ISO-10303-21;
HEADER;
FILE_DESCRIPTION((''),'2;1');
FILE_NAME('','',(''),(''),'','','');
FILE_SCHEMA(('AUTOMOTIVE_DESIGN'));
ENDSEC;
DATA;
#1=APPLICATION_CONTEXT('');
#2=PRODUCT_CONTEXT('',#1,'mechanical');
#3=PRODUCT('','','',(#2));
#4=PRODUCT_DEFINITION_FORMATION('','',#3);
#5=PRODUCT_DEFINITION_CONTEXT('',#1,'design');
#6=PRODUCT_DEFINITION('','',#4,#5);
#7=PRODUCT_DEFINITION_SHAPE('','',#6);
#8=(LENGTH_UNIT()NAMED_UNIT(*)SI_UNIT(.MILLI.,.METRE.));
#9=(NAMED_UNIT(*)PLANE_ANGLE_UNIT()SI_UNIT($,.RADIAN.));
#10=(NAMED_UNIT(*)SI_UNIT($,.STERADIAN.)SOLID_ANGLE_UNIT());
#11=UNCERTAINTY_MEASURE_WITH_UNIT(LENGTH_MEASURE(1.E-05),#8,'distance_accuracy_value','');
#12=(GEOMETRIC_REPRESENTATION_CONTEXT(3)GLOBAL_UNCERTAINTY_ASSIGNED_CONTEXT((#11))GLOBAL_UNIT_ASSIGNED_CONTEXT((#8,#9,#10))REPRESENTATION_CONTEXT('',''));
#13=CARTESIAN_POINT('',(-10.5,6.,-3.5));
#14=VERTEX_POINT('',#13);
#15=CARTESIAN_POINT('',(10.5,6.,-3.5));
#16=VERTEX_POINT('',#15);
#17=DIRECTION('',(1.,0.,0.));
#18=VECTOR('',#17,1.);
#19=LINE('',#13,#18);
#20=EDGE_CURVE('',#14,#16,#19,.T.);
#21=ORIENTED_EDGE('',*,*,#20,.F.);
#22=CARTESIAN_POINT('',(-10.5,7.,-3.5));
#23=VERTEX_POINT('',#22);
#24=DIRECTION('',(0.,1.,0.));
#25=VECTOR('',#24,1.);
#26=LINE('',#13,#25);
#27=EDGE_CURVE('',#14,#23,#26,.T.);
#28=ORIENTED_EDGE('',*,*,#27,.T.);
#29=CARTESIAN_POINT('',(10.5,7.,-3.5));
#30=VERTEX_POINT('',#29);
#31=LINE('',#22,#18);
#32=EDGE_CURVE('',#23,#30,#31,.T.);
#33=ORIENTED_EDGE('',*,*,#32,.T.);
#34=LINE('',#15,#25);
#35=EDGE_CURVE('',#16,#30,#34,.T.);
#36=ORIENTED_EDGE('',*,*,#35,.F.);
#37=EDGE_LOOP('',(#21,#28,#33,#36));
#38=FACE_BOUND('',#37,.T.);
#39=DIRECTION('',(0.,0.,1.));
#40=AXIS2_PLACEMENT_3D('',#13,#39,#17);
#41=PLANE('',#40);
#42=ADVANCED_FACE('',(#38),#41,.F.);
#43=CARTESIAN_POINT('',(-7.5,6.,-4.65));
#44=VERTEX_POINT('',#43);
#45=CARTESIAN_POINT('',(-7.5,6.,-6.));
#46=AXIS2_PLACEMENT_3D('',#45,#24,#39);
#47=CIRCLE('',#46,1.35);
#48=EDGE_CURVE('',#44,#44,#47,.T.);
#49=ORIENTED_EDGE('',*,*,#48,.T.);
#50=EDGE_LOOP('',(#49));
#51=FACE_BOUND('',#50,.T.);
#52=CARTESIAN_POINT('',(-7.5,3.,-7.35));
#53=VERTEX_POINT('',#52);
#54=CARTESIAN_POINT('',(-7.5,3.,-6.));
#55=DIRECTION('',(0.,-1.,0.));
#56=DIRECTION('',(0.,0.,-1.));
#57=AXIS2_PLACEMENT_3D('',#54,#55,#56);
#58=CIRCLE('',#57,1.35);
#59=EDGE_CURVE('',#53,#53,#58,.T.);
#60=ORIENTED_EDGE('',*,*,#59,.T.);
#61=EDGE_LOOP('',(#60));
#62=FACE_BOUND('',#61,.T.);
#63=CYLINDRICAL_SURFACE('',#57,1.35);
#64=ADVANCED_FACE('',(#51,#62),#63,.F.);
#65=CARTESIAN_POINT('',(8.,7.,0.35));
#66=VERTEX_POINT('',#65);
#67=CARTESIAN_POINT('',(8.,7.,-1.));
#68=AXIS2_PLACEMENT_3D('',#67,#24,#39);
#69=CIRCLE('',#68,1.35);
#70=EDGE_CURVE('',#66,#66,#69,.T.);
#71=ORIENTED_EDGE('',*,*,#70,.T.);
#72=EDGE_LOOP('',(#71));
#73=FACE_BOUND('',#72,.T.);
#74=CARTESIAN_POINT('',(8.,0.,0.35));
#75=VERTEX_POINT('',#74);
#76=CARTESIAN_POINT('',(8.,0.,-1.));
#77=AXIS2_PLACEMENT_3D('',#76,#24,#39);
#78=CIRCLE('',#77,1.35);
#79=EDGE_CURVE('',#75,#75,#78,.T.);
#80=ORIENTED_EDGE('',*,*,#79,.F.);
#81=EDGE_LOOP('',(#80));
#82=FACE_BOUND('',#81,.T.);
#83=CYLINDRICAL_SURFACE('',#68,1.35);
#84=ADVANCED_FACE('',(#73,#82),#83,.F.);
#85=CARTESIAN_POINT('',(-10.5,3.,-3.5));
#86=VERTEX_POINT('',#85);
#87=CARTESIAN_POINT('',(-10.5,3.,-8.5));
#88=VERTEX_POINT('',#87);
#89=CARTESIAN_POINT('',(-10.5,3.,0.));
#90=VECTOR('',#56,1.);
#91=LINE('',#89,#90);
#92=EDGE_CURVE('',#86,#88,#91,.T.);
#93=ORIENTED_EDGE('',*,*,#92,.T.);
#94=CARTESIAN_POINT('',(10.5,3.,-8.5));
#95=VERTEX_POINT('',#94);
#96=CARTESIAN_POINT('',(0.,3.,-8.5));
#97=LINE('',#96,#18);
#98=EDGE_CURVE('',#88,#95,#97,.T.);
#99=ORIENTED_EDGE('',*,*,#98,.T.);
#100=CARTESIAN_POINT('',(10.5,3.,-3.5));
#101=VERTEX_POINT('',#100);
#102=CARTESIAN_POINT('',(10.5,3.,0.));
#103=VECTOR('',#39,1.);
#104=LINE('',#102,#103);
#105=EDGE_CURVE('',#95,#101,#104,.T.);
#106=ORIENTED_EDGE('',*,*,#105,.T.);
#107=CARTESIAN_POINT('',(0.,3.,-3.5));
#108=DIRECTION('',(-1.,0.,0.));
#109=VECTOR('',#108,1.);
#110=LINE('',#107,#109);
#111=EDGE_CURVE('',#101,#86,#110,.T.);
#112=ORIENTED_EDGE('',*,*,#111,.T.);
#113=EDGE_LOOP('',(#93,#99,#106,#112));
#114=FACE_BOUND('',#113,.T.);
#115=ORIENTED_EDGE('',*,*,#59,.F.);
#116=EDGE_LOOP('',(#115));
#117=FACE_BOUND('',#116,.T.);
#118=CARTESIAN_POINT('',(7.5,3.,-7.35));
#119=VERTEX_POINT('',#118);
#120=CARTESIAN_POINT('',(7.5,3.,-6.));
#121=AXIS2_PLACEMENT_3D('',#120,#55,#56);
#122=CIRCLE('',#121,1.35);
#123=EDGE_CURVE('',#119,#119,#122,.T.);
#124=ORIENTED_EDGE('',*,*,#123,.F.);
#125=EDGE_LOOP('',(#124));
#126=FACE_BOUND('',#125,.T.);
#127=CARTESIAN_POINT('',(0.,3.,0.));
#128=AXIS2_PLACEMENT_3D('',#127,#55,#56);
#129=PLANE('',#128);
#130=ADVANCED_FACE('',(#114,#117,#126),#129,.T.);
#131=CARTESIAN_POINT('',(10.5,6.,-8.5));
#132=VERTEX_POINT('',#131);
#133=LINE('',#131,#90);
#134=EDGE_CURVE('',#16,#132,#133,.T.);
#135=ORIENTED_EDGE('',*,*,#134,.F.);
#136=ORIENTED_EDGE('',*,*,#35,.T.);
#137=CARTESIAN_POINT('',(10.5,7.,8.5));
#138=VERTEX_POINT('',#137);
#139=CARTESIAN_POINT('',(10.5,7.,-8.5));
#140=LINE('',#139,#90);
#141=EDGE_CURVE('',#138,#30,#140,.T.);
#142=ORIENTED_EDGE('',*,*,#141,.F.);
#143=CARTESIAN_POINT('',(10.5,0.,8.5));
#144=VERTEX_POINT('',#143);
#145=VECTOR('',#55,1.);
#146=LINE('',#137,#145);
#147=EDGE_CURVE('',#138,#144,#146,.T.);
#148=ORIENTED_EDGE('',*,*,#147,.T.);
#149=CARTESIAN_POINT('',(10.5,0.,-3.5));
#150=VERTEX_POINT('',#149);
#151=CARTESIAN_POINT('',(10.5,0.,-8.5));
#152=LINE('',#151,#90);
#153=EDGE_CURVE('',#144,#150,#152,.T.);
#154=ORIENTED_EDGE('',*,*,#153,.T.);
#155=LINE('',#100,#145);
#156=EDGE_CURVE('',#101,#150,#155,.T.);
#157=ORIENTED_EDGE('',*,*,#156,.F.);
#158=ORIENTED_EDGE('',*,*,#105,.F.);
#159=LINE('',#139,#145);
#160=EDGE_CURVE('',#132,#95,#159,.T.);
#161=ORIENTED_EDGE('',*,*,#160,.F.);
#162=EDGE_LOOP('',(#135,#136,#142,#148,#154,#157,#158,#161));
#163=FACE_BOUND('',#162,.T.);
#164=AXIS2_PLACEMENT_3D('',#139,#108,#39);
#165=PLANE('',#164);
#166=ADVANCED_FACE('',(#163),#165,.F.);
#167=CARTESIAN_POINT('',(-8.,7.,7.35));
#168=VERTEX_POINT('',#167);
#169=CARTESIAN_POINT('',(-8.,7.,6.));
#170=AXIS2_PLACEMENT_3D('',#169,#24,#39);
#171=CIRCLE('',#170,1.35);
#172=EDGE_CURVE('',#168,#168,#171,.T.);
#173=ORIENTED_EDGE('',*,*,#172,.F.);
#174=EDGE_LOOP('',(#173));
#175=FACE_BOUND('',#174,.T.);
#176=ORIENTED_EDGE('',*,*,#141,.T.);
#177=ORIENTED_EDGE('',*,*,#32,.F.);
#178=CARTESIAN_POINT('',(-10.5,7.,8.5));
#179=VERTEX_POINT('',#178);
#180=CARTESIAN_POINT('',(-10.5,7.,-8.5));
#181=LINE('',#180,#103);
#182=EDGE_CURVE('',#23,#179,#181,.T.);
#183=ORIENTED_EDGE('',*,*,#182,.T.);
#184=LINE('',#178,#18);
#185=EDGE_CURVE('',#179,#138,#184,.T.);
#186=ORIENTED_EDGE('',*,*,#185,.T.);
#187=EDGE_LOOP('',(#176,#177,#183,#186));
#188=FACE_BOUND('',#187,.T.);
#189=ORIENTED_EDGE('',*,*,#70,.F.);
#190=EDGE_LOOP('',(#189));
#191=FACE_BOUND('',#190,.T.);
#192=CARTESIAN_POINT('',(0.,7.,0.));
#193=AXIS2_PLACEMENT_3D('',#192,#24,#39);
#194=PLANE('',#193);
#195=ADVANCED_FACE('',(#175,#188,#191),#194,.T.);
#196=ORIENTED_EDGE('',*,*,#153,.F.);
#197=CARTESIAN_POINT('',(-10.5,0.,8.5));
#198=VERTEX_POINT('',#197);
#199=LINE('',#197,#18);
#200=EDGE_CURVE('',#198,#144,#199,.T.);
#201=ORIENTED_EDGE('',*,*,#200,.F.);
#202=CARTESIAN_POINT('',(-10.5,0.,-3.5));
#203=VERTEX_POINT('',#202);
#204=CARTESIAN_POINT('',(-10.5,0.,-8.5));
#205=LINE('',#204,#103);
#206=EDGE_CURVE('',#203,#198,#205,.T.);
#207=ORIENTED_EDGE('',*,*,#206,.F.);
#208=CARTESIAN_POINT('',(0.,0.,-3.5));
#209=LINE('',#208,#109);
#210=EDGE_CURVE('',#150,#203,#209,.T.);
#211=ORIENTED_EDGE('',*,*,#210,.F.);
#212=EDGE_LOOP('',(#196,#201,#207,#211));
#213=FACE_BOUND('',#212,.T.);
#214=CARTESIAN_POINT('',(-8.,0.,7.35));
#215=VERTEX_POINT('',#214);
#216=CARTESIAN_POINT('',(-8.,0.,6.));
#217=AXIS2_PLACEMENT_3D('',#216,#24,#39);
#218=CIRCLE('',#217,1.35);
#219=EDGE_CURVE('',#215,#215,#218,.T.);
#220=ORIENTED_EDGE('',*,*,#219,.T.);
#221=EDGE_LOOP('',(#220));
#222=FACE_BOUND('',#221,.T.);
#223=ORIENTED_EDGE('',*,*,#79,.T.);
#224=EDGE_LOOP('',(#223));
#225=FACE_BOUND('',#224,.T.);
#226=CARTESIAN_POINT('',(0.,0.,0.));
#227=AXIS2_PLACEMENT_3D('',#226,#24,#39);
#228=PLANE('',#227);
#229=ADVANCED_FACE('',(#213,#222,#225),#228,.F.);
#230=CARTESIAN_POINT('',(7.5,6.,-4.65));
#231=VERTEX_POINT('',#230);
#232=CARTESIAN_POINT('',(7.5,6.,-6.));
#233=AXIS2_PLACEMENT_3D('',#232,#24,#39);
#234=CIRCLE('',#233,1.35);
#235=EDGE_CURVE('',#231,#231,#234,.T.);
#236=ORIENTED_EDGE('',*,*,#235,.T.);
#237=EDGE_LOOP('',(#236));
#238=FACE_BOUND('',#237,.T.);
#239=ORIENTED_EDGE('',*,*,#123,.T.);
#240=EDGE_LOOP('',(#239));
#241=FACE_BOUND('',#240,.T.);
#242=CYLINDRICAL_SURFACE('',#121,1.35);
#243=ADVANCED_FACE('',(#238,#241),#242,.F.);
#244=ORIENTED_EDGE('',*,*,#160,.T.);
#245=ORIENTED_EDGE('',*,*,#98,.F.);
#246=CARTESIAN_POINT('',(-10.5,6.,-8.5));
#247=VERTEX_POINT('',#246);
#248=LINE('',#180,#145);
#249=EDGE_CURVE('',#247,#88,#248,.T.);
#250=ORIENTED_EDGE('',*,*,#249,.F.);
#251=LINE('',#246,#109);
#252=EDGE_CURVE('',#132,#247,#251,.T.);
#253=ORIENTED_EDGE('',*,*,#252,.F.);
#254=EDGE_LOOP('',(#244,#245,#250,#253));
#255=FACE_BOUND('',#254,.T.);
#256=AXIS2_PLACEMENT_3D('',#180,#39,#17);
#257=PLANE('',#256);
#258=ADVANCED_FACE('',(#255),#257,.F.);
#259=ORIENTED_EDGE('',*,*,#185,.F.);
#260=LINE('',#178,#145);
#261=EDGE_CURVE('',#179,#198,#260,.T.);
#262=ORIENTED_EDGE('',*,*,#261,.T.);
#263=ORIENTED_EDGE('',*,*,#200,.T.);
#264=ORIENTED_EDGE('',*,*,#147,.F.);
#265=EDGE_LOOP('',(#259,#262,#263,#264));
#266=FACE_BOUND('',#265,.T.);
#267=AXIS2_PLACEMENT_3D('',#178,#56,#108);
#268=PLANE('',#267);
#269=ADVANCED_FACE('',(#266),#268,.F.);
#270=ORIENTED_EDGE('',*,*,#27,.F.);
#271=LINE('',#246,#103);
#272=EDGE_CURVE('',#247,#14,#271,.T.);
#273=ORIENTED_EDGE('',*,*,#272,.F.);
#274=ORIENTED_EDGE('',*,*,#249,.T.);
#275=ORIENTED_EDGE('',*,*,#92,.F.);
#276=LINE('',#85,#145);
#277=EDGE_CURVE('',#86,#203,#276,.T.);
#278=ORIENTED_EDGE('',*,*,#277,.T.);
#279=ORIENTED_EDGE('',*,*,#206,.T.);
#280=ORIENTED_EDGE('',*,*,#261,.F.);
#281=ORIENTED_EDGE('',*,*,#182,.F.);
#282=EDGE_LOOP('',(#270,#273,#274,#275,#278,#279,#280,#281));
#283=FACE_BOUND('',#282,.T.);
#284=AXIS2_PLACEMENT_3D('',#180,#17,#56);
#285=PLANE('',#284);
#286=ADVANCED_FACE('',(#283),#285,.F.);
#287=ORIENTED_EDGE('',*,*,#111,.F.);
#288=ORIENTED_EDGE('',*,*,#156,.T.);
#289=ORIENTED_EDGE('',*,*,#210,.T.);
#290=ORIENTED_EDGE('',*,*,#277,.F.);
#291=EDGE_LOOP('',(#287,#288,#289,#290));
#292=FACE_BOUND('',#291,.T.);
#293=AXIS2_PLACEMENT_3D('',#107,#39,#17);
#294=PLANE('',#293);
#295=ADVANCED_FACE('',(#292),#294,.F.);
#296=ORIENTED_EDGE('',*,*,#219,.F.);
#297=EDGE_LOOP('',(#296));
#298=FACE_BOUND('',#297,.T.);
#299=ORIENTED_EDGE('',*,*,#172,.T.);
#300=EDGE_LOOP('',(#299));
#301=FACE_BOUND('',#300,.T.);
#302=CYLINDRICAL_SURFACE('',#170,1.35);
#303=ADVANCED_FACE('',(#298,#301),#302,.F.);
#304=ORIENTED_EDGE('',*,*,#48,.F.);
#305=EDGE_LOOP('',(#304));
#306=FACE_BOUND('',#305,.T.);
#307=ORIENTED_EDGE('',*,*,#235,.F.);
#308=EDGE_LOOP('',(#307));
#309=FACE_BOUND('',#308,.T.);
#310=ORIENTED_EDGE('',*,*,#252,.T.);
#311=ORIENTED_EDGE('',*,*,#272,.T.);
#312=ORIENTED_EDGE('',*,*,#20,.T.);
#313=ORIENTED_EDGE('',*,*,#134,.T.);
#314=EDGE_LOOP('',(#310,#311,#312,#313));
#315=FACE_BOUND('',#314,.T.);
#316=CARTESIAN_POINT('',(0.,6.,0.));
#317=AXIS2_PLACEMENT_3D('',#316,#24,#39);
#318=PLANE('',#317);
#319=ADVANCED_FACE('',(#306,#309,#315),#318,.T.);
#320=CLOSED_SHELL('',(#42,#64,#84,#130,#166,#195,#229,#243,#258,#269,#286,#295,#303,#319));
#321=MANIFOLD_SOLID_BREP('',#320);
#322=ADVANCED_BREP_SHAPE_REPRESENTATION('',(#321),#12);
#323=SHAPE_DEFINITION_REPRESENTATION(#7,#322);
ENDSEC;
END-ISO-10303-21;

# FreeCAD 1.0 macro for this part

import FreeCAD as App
import Part
import Sketcher

V = App.Vector
Q = App.Units.Quantity

doc = App.newDocument("Part")
body = doc.addObject("PartDesign::Body", "Body")

sketch1 = body.newObject("Sketcher::SketchObject", "Sketch")
sketch1.AttachmentSupport = (doc.getObject("XZ_Plane"), [""])
sketch1.MapMode = "FlatFace"
sketch1.addGeometry(Part.LineSegment(V(-10, -8, 0), V(-10, 8, 0)), False)
sketch1.addGeometry(Part.LineSegment(V(-10, 8, 0), V(10, 8, 0)), False)
sketch1.addGeometry(Part.LineSegment(V(10, 8, 0), V(10, -8, 0)), False)
sketch1.addGeometry(Part.LineSegment(V(10, -8, 0), V(-10, -8, 0)), False)
sketch1.addConstraint(Sketcher.Constraint("Coincident", 0, 2, 1, 1))
sketch1.addConstraint(Sketcher.Constraint("Coincident", 1, 2, 2, 1))
sketch1.addConstraint(Sketcher.Constraint("Coincident", 2, 2, 3, 1))
sketch1.addConstraint(Sketcher.Constraint("Coincident", 3, 2, 0, 1))
sketch1.addConstraint(Sketcher.Constraint("Vertical", 0))
sketch1.addConstraint(Sketcher.Constraint("Horizontal", 1))
sketch1.addConstraint(Sketcher.Constraint("Vertical", 2))
sketch1.addConstraint(Sketcher.Constraint("Horizontal", 3))
sketch1.addConstraint(Sketcher.Constraint("Symmetric", 0, 2, 2, 2, -1, 1))
sketch1.addConstraint(Sketcher.Constraint("DistanceX", 1, 1, 1, 2, Q("21 mm")))
sketch1.addConstraint(Sketcher.Constraint("DistanceY", 0, 1, 0, 2, Q("17 mm")))
pad1 = body.newObject("PartDesign::Pad", "Pad")
pad1.Profile = sketch1
pad1.Length = 7
pad1.Reversed = True

sketch2 = body.newObject("Sketcher::SketchObject", "Sketch001")
sketch2.AttachmentSupport = (doc.getObject("XZ_Plane"), [""])
sketch2.MapMode = "FlatFace"
sketch2.AttachmentOffset = App.Placement(V(0, 0, -7), App.Rotation())
sketch2.addGeometry(Part.LineSegment(V(-10, -8, 0), V(-10, -4, 0)), False)
sketch2.addGeometry(Part.LineSegment(V(-10, -4, 0), V(10, -4, 0)), False)
sketch2.addGeometry(Part.LineSegment(V(10, -4, 0), V(10, -8, 0)), False)
sketch2.addGeometry(Part.LineSegment(V(10, -8, 0), V(-10, -8, 0)), False)
sketch2.addConstraint(Sketcher.Constraint("Coincident", 0, 2, 1, 1))
sketch2.addConstraint(Sketcher.Constraint("Coincident", 1, 2, 2, 1))
sketch2.addConstraint(Sketcher.Constraint("Coincident", 2, 2, 3, 1))
sketch2.addConstraint(Sketcher.Constraint("Coincident", 3, 2, 0, 1))
sketch2.addConstraint(Sketcher.Constraint("Vertical", 0))
sketch2.addConstraint(Sketcher.Constraint("Horizontal", 1))
sketch2.addConstraint(Sketcher.Constraint("Vertical", 2))
sketch2.addConstraint(Sketcher.Constraint("Horizontal", 3))
sketch2.addConstraint(Sketcher.Constraint("DistanceX", 1, 1, 1, 2, Q("21 mm")))
sketch2.addConstraint(Sketcher.Constraint("DistanceY", 0, 1, 0, 2, Q("5 mm")))
sketch2.addConstraint(Sketcher.Constraint("DistanceX", 0, 2, -1, 1, Q("10.5 mm")))
sketch2.addConstraint(Sketcher.Constraint("DistanceY", 0, 2, -1, 1, Q("3.5 mm")))
pocket1 = body.newObject("PartDesign::Pocket", "Pocket")
pocket1.Profile = sketch2
pocket1.Length = 1
pocket1.Reversed = True

sketch3 = body.newObject("Sketcher::SketchObject", "Sketch002")
sketch3.AttachmentSupport = (doc.getObject("XZ_Plane"), [""])
sketch3.MapMode = "FlatFace"
sketch3.AttachmentOffset = App.Placement(V(0, 0, -7), App.Rotation())
sketch3.addGeometry(Part.Circle(V(-8, 6, 0), V(0, 0, 1), 1.4), False)
sketch3.addGeometry(Part.Circle(V(8, -1, 0), V(0, 0, 1), 1.4), False)
sketch3.addConstraint(Sketcher.Constraint("Equal", 0, 1))
sketch3.addConstraint(Sketcher.Constraint("Diameter", 0, Q("2.7 mm")))
sketch3.addConstraint(Sketcher.Constraint("DistanceX", 0, 3, -1, 1, Q("8 mm")))
sketch3.addConstraint(Sketcher.Constraint("DistanceY", -1, 1, 0, 3, Q("6 mm")))
sketch3.addConstraint(Sketcher.Constraint("DistanceX", -1, 1, 1, 3, Q("8 mm")))
sketch3.addConstraint(Sketcher.Constraint("DistanceY", 1, 3, -1, 1, Q("1 mm")))
doc.recompute()
hole = body.newObject("PartDesign::Hole", "Hole")
hole.Profile = sketch3
hole.ThreadType = "None"
hole.Diameter = 2.7
hole.DepthType = "ThroughAll"
hole.Reversed = True

sketch4 = body.newObject("Sketcher::SketchObject", "Sketch003")
sketch4.AttachmentSupport = (doc.getObject("XZ_Plane"), [""])
sketch4.MapMode = "FlatFace"
sketch4.addGeometry(Part.LineSegment(V(-10, -4, 0), V(-10, -8, 0)), False)
sketch4.addGeometry(Part.LineSegment(V(-10, -8, 0), V(10, -8, 0)), False)
sketch4.addGeometry(Part.LineSegment(V(10, -8, 0), V(10, -4, 0)), False)
sketch4.addGeometry(Part.LineSegment(V(10, -4, 0), V(-10, -4, 0)), False)
sketch4.addConstraint(Sketcher.Constraint("Coincident", 0, 2, 1, 1))
sketch4.addConstraint(Sketcher.Constraint("Coincident", 1, 2, 2, 1))
sketch4.addConstraint(Sketcher.Constraint("Coincident", 2, 2, 3, 1))
sketch4.addConstraint(Sketcher.Constraint("Coincident", 3, 2, 0, 1))
sketch4.addConstraint(Sketcher.Constraint("Vertical", 0))
sketch4.addConstraint(Sketcher.Constraint("Horizontal", 1))
sketch4.addConstraint(Sketcher.Constraint("Vertical", 2))
sketch4.addConstraint(Sketcher.Constraint("Horizontal", 3))
sketch4.addConstraint(Sketcher.Constraint("DistanceX", 1, 1, 1, 2, Q("21 mm")))
sketch4.addConstraint(Sketcher.Constraint("DistanceY", 0, 2, 0, 1, Q("5 mm")))
sketch4.addConstraint(Sketcher.Constraint("DistanceX", 0, 2, -1, 1, Q("10.5 mm")))
sketch4.addConstraint(Sketcher.Constraint("DistanceY", 0, 2, -1, 1, Q("8.5 mm")))
pocket2 = body.newObject("PartDesign::Pocket", "Pocket001")
pocket2.Profile = sketch4
pocket2.Length = 3

sketch5 = body.newObject("Sketcher::SketchObject", "Sketch004")
sketch5.AttachmentSupport = (doc.getObject("XZ_Plane"), [""])
sketch5.MapMode = "FlatFace"
sketch5.AttachmentOffset = App.Placement(V(0, 0, -3), App.Rotation())
sketch5.addGeometry(Part.Circle(V(7.5, -6, 0), V(0, 0, 1), 1.4), False)
sketch5.addGeometry(Part.Circle(V(-7.5, -6, 0), V(0, 0, 1), 1.4), False)
sketch5.addConstraint(Sketcher.Constraint("Equal", 0, 1))
sketch5.addConstraint(Sketcher.Constraint("Symmetric", 0, 3, 1, 3, -2))
sketch5.addConstraint(Sketcher.Constraint("Diameter", 0, Q("2.7 mm")))
sketch5.addConstraint(Sketcher.Constraint("DistanceY", 0, 3, -1, 1, Q("6 mm")))
sketch5.addConstraint(Sketcher.Constraint("DistanceX", 1, 3, 0, 3, Q("15 mm")))
doc.recompute()
hole2 = body.newObject("PartDesign::Hole", "Hole001")
hole2.Profile = sketch5
hole2.ThreadType = "None"
hole2.Diameter = 2.7
hole2.DepthType = "ThroughAll"

doc.recompute()
